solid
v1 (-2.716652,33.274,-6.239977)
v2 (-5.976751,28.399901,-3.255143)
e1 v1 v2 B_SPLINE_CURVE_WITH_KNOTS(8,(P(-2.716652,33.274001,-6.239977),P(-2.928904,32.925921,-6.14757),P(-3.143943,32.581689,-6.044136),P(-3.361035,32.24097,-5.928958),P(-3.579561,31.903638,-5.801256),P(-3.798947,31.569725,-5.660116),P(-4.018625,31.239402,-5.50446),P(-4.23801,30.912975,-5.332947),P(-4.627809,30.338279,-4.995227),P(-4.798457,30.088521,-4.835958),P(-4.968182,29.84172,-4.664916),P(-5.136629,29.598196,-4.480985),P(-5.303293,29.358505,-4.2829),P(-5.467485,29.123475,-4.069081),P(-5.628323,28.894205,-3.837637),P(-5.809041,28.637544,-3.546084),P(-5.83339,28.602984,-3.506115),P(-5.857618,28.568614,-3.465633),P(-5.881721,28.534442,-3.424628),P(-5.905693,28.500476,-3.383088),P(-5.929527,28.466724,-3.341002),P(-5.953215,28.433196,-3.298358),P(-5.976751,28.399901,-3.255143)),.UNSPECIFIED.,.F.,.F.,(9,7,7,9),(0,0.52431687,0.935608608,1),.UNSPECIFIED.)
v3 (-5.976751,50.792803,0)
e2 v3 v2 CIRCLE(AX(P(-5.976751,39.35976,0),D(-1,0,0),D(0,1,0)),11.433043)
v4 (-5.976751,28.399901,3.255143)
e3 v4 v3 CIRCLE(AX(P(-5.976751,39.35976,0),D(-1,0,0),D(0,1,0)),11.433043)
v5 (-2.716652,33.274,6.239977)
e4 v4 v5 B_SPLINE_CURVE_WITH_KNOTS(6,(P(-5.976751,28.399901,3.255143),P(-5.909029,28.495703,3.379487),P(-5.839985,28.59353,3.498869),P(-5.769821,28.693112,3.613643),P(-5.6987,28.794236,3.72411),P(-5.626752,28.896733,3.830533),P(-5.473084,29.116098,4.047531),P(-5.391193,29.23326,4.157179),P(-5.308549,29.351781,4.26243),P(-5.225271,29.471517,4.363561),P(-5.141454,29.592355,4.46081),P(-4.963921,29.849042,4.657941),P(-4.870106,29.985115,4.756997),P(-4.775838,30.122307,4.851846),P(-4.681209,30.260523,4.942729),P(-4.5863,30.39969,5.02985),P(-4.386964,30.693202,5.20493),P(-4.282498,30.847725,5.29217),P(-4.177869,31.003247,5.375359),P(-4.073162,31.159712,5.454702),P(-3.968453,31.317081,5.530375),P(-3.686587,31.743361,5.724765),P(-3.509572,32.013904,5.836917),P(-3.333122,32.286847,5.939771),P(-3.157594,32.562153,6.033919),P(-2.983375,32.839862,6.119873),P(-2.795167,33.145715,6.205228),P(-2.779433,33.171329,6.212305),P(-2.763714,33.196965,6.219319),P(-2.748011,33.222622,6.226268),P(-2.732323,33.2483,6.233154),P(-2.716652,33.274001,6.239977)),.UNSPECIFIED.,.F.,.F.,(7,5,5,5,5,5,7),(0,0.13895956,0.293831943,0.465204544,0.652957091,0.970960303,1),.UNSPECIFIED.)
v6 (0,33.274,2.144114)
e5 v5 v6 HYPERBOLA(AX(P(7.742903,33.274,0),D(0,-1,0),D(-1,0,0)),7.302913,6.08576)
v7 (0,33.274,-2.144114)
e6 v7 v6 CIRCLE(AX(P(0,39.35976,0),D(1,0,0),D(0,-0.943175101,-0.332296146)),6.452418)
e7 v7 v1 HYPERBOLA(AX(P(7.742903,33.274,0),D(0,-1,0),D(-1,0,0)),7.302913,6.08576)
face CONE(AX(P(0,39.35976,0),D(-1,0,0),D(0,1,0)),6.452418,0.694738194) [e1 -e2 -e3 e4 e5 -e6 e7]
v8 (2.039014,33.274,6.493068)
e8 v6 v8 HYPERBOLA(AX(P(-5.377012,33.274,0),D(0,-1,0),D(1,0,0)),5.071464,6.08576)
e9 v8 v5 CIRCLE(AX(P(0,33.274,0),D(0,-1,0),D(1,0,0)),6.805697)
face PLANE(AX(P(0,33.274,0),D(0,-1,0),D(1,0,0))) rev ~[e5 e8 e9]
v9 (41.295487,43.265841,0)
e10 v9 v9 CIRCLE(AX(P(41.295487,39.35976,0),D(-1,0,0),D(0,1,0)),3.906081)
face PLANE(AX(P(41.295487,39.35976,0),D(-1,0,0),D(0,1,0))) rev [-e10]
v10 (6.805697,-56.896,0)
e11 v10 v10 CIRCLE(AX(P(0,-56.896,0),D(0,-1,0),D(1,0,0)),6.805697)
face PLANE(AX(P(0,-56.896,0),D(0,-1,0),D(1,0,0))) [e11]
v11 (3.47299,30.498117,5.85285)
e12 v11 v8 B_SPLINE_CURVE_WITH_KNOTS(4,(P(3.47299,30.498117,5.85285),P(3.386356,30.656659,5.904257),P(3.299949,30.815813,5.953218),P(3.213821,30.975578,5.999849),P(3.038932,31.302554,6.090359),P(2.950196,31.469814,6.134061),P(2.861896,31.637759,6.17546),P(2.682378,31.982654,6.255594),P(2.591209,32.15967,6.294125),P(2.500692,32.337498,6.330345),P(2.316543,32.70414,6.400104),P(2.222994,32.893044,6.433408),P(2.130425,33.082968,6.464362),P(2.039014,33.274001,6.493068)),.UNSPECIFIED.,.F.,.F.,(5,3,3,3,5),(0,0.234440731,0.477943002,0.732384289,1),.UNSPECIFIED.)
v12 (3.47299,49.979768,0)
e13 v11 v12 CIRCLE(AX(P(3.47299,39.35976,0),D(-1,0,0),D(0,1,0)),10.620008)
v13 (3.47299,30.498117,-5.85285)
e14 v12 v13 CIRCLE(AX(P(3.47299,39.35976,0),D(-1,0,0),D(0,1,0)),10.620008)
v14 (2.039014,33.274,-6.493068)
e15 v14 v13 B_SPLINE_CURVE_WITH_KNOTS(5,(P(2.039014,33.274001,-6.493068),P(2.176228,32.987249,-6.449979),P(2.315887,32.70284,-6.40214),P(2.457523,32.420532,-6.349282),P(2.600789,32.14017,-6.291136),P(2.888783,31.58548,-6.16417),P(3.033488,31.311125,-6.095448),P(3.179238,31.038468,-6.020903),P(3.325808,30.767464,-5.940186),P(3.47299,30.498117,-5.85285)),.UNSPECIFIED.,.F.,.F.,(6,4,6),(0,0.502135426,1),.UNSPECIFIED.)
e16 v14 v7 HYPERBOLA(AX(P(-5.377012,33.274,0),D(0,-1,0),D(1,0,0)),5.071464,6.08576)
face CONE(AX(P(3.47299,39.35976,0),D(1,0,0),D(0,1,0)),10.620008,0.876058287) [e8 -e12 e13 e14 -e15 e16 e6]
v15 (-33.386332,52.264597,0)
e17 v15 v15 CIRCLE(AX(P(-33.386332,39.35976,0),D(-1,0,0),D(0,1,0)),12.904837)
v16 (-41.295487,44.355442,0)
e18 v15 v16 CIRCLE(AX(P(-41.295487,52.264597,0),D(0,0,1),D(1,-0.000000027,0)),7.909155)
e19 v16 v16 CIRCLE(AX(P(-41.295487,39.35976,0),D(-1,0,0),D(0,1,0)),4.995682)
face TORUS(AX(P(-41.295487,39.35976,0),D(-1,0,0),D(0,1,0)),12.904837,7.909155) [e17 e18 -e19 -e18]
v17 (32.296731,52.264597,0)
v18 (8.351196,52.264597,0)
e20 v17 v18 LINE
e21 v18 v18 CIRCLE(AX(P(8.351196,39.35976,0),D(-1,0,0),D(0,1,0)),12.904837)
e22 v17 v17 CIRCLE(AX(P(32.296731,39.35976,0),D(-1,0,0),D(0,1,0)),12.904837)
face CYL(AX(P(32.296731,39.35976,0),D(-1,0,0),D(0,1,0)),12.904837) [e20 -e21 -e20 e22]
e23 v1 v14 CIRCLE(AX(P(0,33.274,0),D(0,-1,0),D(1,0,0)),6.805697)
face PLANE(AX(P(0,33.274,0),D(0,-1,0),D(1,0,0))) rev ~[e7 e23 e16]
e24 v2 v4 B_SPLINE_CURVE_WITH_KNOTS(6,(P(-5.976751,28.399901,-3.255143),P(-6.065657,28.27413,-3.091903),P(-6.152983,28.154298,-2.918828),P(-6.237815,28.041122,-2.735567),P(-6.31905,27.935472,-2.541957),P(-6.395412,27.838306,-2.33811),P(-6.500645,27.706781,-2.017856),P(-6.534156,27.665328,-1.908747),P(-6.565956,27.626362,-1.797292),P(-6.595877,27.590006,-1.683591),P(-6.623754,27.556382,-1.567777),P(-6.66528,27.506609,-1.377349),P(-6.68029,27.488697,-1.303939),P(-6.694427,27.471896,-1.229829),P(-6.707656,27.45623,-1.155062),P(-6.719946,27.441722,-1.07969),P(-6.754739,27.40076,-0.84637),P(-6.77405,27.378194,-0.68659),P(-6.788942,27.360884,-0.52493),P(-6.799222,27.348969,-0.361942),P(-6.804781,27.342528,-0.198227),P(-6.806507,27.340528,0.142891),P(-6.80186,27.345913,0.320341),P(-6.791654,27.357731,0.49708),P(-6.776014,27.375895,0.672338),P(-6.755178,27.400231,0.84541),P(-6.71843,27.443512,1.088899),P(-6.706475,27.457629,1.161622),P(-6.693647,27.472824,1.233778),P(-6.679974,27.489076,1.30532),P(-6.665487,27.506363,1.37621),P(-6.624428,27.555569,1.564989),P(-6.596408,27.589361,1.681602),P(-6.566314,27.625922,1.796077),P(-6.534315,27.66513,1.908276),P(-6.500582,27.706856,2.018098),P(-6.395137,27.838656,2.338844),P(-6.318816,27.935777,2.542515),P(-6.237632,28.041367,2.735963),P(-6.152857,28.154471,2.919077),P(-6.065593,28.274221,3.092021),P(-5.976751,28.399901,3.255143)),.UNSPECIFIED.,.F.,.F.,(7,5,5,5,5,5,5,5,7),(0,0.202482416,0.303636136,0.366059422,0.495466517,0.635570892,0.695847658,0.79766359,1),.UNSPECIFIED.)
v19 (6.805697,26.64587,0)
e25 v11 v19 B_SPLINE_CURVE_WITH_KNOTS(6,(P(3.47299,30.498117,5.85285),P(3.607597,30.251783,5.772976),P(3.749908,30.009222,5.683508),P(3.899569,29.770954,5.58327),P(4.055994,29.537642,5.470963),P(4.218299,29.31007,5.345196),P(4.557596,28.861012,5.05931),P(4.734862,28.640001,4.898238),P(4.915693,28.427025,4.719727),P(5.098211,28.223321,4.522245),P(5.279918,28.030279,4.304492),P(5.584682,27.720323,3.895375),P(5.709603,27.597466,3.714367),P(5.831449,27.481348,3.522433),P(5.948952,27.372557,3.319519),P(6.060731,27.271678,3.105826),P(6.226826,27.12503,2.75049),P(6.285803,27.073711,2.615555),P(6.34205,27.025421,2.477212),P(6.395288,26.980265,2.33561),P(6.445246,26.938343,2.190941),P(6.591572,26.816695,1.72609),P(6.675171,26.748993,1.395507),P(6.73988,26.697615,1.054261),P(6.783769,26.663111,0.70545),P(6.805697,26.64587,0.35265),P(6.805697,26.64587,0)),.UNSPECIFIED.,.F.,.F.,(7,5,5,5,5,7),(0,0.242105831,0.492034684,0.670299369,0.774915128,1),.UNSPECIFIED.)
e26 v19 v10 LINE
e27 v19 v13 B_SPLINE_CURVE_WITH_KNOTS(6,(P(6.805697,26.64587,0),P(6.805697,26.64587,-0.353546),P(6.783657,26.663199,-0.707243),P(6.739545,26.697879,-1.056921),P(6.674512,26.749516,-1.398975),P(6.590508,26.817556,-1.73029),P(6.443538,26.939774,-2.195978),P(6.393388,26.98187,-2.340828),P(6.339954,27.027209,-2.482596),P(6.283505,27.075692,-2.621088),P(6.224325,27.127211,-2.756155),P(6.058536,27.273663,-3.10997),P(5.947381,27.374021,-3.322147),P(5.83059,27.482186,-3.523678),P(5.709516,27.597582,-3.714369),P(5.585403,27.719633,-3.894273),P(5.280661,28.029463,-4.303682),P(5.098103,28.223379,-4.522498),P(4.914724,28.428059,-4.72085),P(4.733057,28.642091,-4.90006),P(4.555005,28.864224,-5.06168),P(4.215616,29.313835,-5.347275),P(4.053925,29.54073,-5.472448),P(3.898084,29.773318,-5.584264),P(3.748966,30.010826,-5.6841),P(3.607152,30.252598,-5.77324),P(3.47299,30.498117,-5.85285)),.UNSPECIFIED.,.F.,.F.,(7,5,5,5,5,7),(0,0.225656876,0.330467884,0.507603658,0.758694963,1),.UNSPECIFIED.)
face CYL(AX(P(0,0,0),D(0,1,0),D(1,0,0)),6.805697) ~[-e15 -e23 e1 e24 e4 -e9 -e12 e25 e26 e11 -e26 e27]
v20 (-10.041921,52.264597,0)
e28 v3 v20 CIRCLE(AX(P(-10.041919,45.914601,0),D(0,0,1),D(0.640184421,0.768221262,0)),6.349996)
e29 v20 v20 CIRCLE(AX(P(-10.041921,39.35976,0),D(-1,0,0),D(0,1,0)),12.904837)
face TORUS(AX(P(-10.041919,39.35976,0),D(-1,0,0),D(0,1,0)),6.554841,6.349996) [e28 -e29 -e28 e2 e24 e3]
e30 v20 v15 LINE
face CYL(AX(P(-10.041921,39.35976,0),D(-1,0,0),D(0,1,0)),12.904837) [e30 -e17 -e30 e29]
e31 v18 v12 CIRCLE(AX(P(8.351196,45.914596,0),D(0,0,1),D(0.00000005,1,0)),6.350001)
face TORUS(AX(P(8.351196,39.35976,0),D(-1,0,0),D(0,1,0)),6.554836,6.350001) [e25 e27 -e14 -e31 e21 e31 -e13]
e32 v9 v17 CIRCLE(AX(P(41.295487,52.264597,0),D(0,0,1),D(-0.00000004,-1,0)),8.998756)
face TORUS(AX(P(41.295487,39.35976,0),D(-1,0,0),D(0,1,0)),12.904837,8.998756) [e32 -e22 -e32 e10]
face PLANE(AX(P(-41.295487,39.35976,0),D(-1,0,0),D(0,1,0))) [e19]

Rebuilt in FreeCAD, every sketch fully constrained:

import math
import FreeCAD as App
import Part
import Sketcher
Q = App.Units.Quantity

doc = App.newDocument("Part")
body = doc.addObject("PartDesign::Body", "Body")

# Sketch on XY plane
sketch1 = body.newObject("Sketcher::SketchObject", "Sketch")
sketch1.AttachmentSupport = (doc.getObject("XY_Plane"), [""])
sketch1.MapMode = "FlatFace"
sketch1.addGeometry(Part.LineSegment(App.Vector(-41.3, 39.4, 0), App.Vector(41.3, 39.4, 0)), False)
sketch1.addGeometry(Part.LineSegment(App.Vector(41.3, 39.4, 0), App.Vector(41.3, 43.3, 0)), False)
sketch1.addGeometry(Part.ArcOfCircle(Part.Circle(App.Vector(41.3, 52.3, 0), App.Vector(0, 0, 1), 9), math.radians(-90), math.radians(180)), False)
sketch1.addGeometry(Part.LineSegment(App.Vector(32.3, 52.3, 0), App.Vector(8.4, 52.3, 0)), False)
sketch1.addGeometry(Part.ArcOfCircle(Part.Circle(App.Vector(8.4, 45.9, 0), App.Vector(0, 0, 1), 6.4), math.radians(90), math.radians(140)), False)
sketch1.addGeometry(Part.LineSegment(App.Vector(3.5, 50, 0), App.Vector(0, 45.8, 0)), False)
sketch1.addGeometry(Part.LineSegment(App.Vector(0, 45.8, 0), App.Vector(-6, 50.8, 0)), False)
sketch1.addGeometry(Part.ArcOfCircle(Part.Circle(App.Vector(-10, 45.9, 0), App.Vector(0, 0, 1), 6.3), math.radians(50), math.radians(90)), False)
sketch1.addGeometry(Part.LineSegment(App.Vector(-10, 52.3, 0), App.Vector(-33.4, 52.3, 0)), False)
sketch1.addGeometry(Part.ArcOfCircle(Part.Circle(App.Vector(-41.3, 52.3, 0), App.Vector(0, 0, 1), 7.9), math.radians(0), math.radians(270)), False)
sketch1.addGeometry(Part.LineSegment(App.Vector(-41.3, 44.4, 0), App.Vector(-41.3, 39.4, 0)), False)
sketch1.addGeometry(Part.LineSegment(App.Vector(41.3, 39.4, 0), App.Vector(-41.3, 39.4, 0)), True)  # axis
sketch1.addConstraint(Sketcher.Constraint("Coincident", 0, 2, 1, 1))
sketch1.addConstraint(Sketcher.Constraint("Coincident", 1, 2, 2, 1))
sketch1.addConstraint(Sketcher.Constraint("Coincident", 2, 2, 3, 1))
sketch1.addConstraint(Sketcher.Constraint("Tangent", 3, 2, 4, 1))
sketch1.addConstraint(Sketcher.Constraint("Tangent", 4, 2, 5, 1))
sketch1.addConstraint(Sketcher.Constraint("Coincident", 5, 2, 6, 1))
sketch1.addConstraint(Sketcher.Constraint("Tangent", 6, 2, 7, 1))
sketch1.addConstraint(Sketcher.Constraint("Tangent", 7, 2, 8, 1))
sketch1.addConstraint(Sketcher.Constraint("Coincident", 8, 2, 9, 1))
sketch1.addConstraint(Sketcher.Constraint("Coincident", 9, 2, 10, 1))
sketch1.addConstraint(Sketcher.Constraint("Coincident", 10, 2, 0, 1))
sketch1.addConstraint(Sketcher.Constraint("Horizontal", 0))
sketch1.addConstraint(Sketcher.Constraint("Vertical", 1))
sketch1.addConstraint(Sketcher.Constraint("Horizontal", 3))
sketch1.addConstraint(Sketcher.Constraint("Horizontal", 8))
sketch1.addConstraint(Sketcher.Constraint("Vertical", 10))
sketch1.addConstraint(Sketcher.Constraint("Horizontal", 11))
sketch1.addConstraint(Sketcher.Constraint("Coincident", 11, 1, 0, 2))
sketch1.addConstraint(Sketcher.Constraint("Symmetric", 2, 3, 9, 3, -2))
sketch1.addConstraint(Sketcher.Constraint("PointOnObject", 5, 2, -2))
sketch1.addConstraint(Sketcher.Constraint("Perpendicular", 5, 6))
sketch1.addConstraint(Sketcher.Constraint("Horizontal", 9, 3, 2, 2))
sketch1.addConstraint(Sketcher.Constraint("Horizontal", 3, 2, 7, 2))
sketch1.addConstraint(Sketcher.Constraint("Vertical", 2, 3, 0, 2))
sketch1.addConstraint(Sketcher.Constraint("Vertical", 9, 2, 11, 2))
sketch1.addConstraint(Sketcher.Constraint("Radius", 4, Q("0.2500001 in")))
sketch1.addConstraint(Sketcher.Constraint("Radius", 7, Q("0.2499998 in")))
sketch1.addConstraint(Sketcher.Constraint("Radius", 2, Q("8.998756 mm")))
sketch1.addConstraint(Sketcher.Constraint("Radius", 9, Q("7.909155 mm")))
sketch1.addConstraint(Sketcher.Constraint("DistanceX", 8, 2, 8, 1, Q("23.344411 mm")))
sketch1.addConstraint(Sketcher.Constraint("DistanceY", 1, 1, 1, 2, Q("3.906081 mm")))
sketch1.addConstraint(Sketcher.Constraint("DistanceY", -1, 1, 7, 3, Q("45.914601 mm")))
sketch1.addConstraint(Sketcher.Constraint("DistanceY", 7, 3, 6, 2, Q("4.878202 mm")))
sketch1.addConstraint(Sketcher.Constraint("DistanceX", 0, 1, 0, 2, Q("82.590974 mm")))
sketch1.addConstraint(Sketcher.Constraint("DistanceX", 3, 2, 3, 1, Q("23.945535 mm")))
revolution = body.newObject("PartDesign::Revolution", "Revolution")
revolution.Profile = sketch1
revolution.ReferenceAxis = (sketch1, ["Axis0"])
revolution.Angle = 360

# Sketch on XZ plane
sketch2 = body.newObject("Sketcher::SketchObject", "Sketch001")
sketch2.AttachmentSupport = (doc.getObject("XZ_Plane"), [""])
sketch2.MapMode = "FlatFace"
sketch2.addGeometry(Part.Circle(App.Vector(0, 0, 0), App.Vector(0, 0, 1), 7), False)
sketch2.addConstraint(Sketcher.Constraint("Coincident", 0, 3, -1, 1))
sketch2.addConstraint(Sketcher.Constraint("Diameter", 0, Q("13.611394 mm")))
pad1 = body.newObject("PartDesign::Pad", "Pad")
pad1.Profile = sketch2
pad1.Length = Q("1.31 in")
pad1.Reversed = True

# Sketch on XZ plane
sketch3 = body.newObject("Sketcher::SketchObject", "Sketch002")
sketch3.AttachmentSupport = (doc.getObject("XZ_Plane"), [""])
sketch3.MapMode = "FlatFace"
sketch3.addGeometry(Part.Circle(App.Vector(0, 0, 0), App.Vector(0, 0, 1), 7), False)
sketch3.addConstraint(Sketcher.Constraint("Coincident", 0, 3, -1, 1))
sketch3.addConstraint(Sketcher.Constraint("Diameter", 0, Q("13.611394 mm")))
pad2 = body.newObject("PartDesign::Pad", "Pad001")
pad2.Profile = sketch3
pad2.Length = Q("2.24 in")

doc.recompute()
